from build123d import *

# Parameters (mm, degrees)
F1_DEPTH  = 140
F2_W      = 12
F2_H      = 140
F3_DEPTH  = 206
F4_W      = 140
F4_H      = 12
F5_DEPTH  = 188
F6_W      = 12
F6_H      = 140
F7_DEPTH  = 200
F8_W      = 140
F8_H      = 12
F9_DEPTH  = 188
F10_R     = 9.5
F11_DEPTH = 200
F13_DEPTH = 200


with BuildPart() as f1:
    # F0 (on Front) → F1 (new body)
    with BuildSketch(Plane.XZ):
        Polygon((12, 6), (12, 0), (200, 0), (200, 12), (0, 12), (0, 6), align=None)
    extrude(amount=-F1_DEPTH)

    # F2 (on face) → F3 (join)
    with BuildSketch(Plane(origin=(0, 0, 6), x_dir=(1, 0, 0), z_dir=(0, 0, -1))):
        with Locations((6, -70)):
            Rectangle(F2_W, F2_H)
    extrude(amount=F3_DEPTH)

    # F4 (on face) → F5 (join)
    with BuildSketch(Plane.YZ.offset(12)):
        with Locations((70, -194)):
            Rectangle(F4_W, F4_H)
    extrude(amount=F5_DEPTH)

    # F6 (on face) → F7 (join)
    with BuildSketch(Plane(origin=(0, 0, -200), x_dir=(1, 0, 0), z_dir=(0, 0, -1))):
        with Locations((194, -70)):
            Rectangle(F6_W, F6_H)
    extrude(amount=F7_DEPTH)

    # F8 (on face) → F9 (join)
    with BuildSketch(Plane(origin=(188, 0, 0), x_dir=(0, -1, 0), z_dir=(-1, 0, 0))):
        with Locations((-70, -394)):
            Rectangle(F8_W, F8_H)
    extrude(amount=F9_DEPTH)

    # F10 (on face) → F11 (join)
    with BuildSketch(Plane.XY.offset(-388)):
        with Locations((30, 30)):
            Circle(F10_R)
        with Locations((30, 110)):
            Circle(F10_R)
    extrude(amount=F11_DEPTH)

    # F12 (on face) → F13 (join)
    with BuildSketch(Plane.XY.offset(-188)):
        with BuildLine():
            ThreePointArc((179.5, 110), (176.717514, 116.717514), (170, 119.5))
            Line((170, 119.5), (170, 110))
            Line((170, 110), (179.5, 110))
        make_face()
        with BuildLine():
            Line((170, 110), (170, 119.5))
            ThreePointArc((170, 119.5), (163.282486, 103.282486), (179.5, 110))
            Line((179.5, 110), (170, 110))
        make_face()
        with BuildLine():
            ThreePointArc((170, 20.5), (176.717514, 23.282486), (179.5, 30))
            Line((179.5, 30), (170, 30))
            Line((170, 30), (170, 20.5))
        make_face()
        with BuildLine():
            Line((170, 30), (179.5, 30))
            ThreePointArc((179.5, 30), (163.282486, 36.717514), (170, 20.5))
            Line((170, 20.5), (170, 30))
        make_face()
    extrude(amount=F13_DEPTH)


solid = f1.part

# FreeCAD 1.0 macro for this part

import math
import FreeCAD as App
import Part
import Sketcher

V = App.Vector
Q = App.Units.Quantity

doc = App.newDocument("Part")
body = doc.addObject("PartDesign::Body", "Body")

# Sketch on XZ plane
sketch1 = body.newObject("Sketcher::SketchObject", "Sketch")
sketch1.AttachmentSupport = (doc.getObject("XZ_Plane"), [""])
sketch1.MapMode = "FlatFace"
sketch1.addGeometry([
    Part.LineSegment(V(12, 6, 0), V(12, 0, 0)),  # 0
    Part.LineSegment(V(12, 0, 0), V(200, 0, 0)),  # 1
    Part.LineSegment(V(200, 0, 0), V(200, 12, 0)),  # 2
    Part.LineSegment(V(200, 12, 0), V(0, 12, 0)),  # 3
    Part.LineSegment(V(0, 12, 0), V(0, 6, 0)),  # 4
    Part.LineSegment(V(0, 6, 0), V(12, 6, 0)),  # 5
], False)
sketch1.addConstraint([
    Sketcher.Constraint("Coincident", 0, 2, 1, 1),
    Sketcher.Constraint("Coincident", 1, 2, 2, 1),
    Sketcher.Constraint("Coincident", 2, 2, 3, 1),
    Sketcher.Constraint("Coincident", 3, 2, 4, 1),
    Sketcher.Constraint("Coincident", 4, 2, 5, 1),
    Sketcher.Constraint("Coincident", 5, 2, 0, 1),
    Sketcher.Constraint("Vertical", 0),
    Sketcher.Constraint("Horizontal", 1),
    Sketcher.Constraint("Vertical", 2),
    Sketcher.Constraint("Horizontal", 3),
    Sketcher.Constraint("Vertical", 4),
    Sketcher.Constraint("Horizontal", 5),
    Sketcher.Constraint("PointOnObject", 0, 2, -1),
    Sketcher.Constraint("PointOnObject", 3, 2, -2),
    Sketcher.Constraint("Equal", 5, 2),
    Sketcher.Constraint("Equal", 0, 4),
    Sketcher.Constraint("DistanceX", 1, 1, 1, 2, Q("188 mm")),
    Sketcher.Constraint("DistanceX", 3, 2, 3, 1, Q("200 mm")),
])
pad1 = body.newObject("PartDesign::Pad", "Pad")
pad1.Profile = sketch1
pad1.Length = 140
pad1.Reversed = True

# Sketch on XY plane
sketch2 = body.newObject("Sketcher::SketchObject", "Sketch001")
sketch2.AttachmentSupport = (doc.getObject("XY_Plane"), [""])
sketch2.MapMode = "FlatFace"
sketch2.AttachmentOffset = App.Placement(V(0, 0, 6), App.Rotation())
sketch2.addGeometry([
    Part.LineSegment(V(0, 0, 0), V(0, 140, 0)),
    Part.LineSegment(V(0, 140, 0), V(12, 140, 0)),
    Part.LineSegment(V(12, 140, 0), V(12, 0, 0)),
    Part.LineSegment(V(12, 0, 0), V(0, 0, 0)),
], False)
sketch2.addConstraint([
    Sketcher.Constraint("Coincident", 0, 2, 1, 1),
    Sketcher.Constraint("Coincident", 1, 2, 2, 1),
    Sketcher.Constraint("Coincident", 2, 2, 3, 1),
    Sketcher.Constraint("Coincident", 3, 2, 0, 1),
    Sketcher.Constraint("Vertical", 0),
    Sketcher.Constraint("Horizontal", 1),
    Sketcher.Constraint("Vertical", 2),
    Sketcher.Constraint("Horizontal", 3),
    Sketcher.Constraint("Coincident", 3, 2, -1, 1),
    Sketcher.Constraint("DistanceX", 1, 1, 1, 2, Q("12 mm")),
    Sketcher.Constraint("DistanceY", 0, 1, 0, 2, Q("140 mm")),
])
pad2 = body.newObject("PartDesign::Pad", "Pad001")
pad2.Profile = sketch2
pad2.Length = 206
pad2.Reversed = True

# Sketch on YZ plane
sketch3 = body.newObject("Sketcher::SketchObject", "Sketch002")
sketch3.AttachmentSupport = (doc.getObject("YZ_Plane"), [""])
sketch3.MapMode = "FlatFace"
sketch3.AttachmentOffset = App.Placement(V(0, 0, 12), App.Rotation())
sketch3.addGeometry([
    Part.LineSegment(V(0, -188, 0), V(0, -200, 0)),
    Part.LineSegment(V(0, -200, 0), V(140, -200, 0)),
    Part.LineSegment(V(140, -200, 0), V(140, -188, 0)),
    Part.LineSegment(V(140, -188, 0), V(0, -188, 0)),
], False)
sketch3.addConstraint([
    Sketcher.Constraint("Coincident", 0, 2, 1, 1),
    Sketcher.Constraint("Coincident", 1, 2, 2, 1),
    Sketcher.Constraint("Coincident", 2, 2, 3, 1),
    Sketcher.Constraint("Coincident", 3, 2, 0, 1),
    Sketcher.Constraint("Vertical", 0),
    Sketcher.Constraint("Horizontal", 1),
    Sketcher.Constraint("Vertical", 2),
    Sketcher.Constraint("Horizontal", 3),
    Sketcher.Constraint("PointOnObject", 0, 2, -2),
    Sketcher.Constraint("DistanceX", 1, 1, 1, 2, Q("140 mm")),
    Sketcher.Constraint("DistanceY", 0, 2, 0, 1, Q("12 mm")),
    Sketcher.Constraint("DistanceY", 0, 2, -1, 1, Q("200 mm")),
])
pad3 = body.newObject("PartDesign::Pad", "Pad002")
pad3.Profile = sketch3
pad3.Length = 188

# Sketch on XY plane
sketch4 = body.newObject("Sketcher::SketchObject", "Sketch003")
sketch4.AttachmentSupport = (doc.getObject("XY_Plane"), [""])
sketch4.MapMode = "FlatFace"
sketch4.AttachmentOffset = App.Placement(V(0, 0, -200), App.Rotation())
sketch4.addGeometry([
    Part.LineSegment(V(188, 0, 0), V(188, 140, 0)),
    Part.LineSegment(V(188, 140, 0), V(200, 140, 0)),
    Part.LineSegment(V(200, 140, 0), V(200, 0, 0)),
    Part.LineSegment(V(200, 0, 0), V(188, 0, 0)),
], False)
sketch4.addConstraint([
    Sketcher.Constraint("Coincident", 0, 2, 1, 1),
    Sketcher.Constraint("Coincident", 1, 2, 2, 1),
    Sketcher.Constraint("Coincident", 2, 2, 3, 1),
    Sketcher.Constraint("Coincident", 3, 2, 0, 1),
    Sketcher.Constraint("Vertical", 0),
    Sketcher.Constraint("Horizontal", 1),
    Sketcher.Constraint("Vertical", 2),
    Sketcher.Constraint("Horizontal", 3),
    Sketcher.Constraint("PointOnObject", 2, 2, -1),
    Sketcher.Constraint("DistanceX", 1, 1, 1, 2, Q("12 mm")),
    Sketcher.Constraint("DistanceY", 0, 1, 0, 2, Q("140 mm")),
    Sketcher.Constraint("DistanceX", -1, 1, 0, 2, Q("188 mm")),
])
pad4 = body.newObject("PartDesign::Pad", "Pad003")
pad4.Profile = sketch4
pad4.Length = 200
pad4.Reversed = True

# Sketch on YZ plane
sketch5 = body.newObject("Sketcher::SketchObject", "Sketch004")
sketch5.AttachmentSupport = (doc.getObject("YZ_Plane"), [""])
sketch5.MapMode = "FlatFace"
sketch5.AttachmentOffset = App.Placement(V(0, 0, 188), App.Rotation())
sketch5.addGeometry([
    Part.LineSegment(V(140, -388, 0), V(140, -400, 0)),
    Part.LineSegment(V(140, -400, 0), V(0, -400, 0)),
    Part.LineSegment(V(0, -400, 0), V(0, -388, 0)),
    Part.LineSegment(V(0, -388, 0), V(140, -388, 0)),
], False)
sketch5.addConstraint([
    Sketcher.Constraint("Coincident", 0, 2, 1, 1),
    Sketcher.Constraint("Coincident", 1, 2, 2, 1),
    Sketcher.Constraint("Coincident", 2, 2, 3, 1),
    Sketcher.Constraint("Coincident", 3, 2, 0, 1),
    Sketcher.Constraint("Vertical", 0),
    Sketcher.Constraint("Horizontal", 1),
    Sketcher.Constraint("Vertical", 2),
    Sketcher.Constraint("Horizontal", 3),
    Sketcher.Constraint("PointOnObject", 1, 2, -2),
    Sketcher.Constraint("DistanceX", 1, 2, 1, 1, Q("140 mm")),
    Sketcher.Constraint("DistanceY", 0, 2, 0, 1, Q("12 mm")),
    Sketcher.Constraint("DistanceY", 0, 2, -1, 1, Q("400 mm")),
])
pad5 = body.newObject("PartDesign::Pad", "Pad004")
pad5.Profile = sketch5
pad5.Length = 188
pad5.Reversed = True

# Sketch on XY plane
sketch6 = body.newObject("Sketcher::SketchObject", "Sketch005")
sketch6.AttachmentSupport = (doc.getObject("XY_Plane"), [""])
sketch6.MapMode = "FlatFace"
sketch6.AttachmentOffset = App.Placement(V(0, 0, -388), App.Rotation())
sketch6.addGeometry([
    Part.Circle(V(30, 30, 0), V(0, 0, 1), 9.5),
    Part.Circle(V(30, 110, 0), V(0, 0, 1), 9.5),
], False)
sketch6.addConstraint([
    Sketcher.Constraint("Equal", 0, 1),
    Sketcher.Constraint("Vertical", 0, 3, 1, 3),
    Sketcher.Constraint("Diameter", 0, Q("19 mm")),
    Sketcher.Constraint("DistanceX", -1, 1, 0, 3, Q("30 mm")),
    Sketcher.Constraint("DistanceY", -1, 1, 0, 3, Q("30 mm")),
    Sketcher.Constraint("DistanceY", -1, 1, 1, 3, Q("110 mm")),
])
pad6 = body.newObject("PartDesign::Pad", "Pad005")
pad6.Profile = sketch6
pad6.Length = 200

# Sketch on XY plane
sketch7 = body.newObject("Sketcher::SketchObject", "Sketch006")
sketch7.AttachmentSupport = (doc.getObject("XY_Plane"), [""])
sketch7.MapMode = "FlatFace"
sketch7.AttachmentOffset = App.Placement(V(0, 0, -188), App.Rotation())
sketch7.addGeometry([
    Part.ArcOfCircle(Part.Circle(V(169.999999, 109.999999, 0), V(0, 0, 1), 9.500001), math.radians(0.000009), math.radians(89.999991)),
    Part.ArcOfCircle(Part.Circle(V(170, 110, 0), V(0, 0, 1), 9.5), math.radians(90.000001), math.radians(359.999999)),
    Part.ArcOfCircle(Part.Circle(V(169.999999, 30.000001, 0), V(0, 0, 1), 9.500001), math.radians(-89.999991), math.radians(-0.000009)),
    Part.ArcOfCircle(Part.Circle(V(170, 30, 0), V(0, 0, 1), 9.5), math.radians(0.000001), math.radians(269.999999)),
], False)
sketch7.addConstraint([
    Sketcher.Constraint("Tangent", 0, 1, 1, 2),
    Sketcher.Constraint("Coincident", 1, 1, 0, 2),
    Sketcher.Constraint("Tangent", 2, 1, 3, 2),
    Sketcher.Constraint("Coincident", 3, 1, 2, 2),
    Sketcher.Constraint("Equal", 1, 2),
    Sketcher.Constraint("Horizontal", 1, 3, 0, 1),
    Sketcher.Constraint("Horizontal", 2, 3, 3, 1),
    Sketcher.Constraint("Vertical", 1, 3, 2, 3),
    Sketcher.Constraint("Vertical", 3, 3, 1, 1),
    Sketcher.Constraint("Vertical", 1, 1, 2, 1),
    Sketcher.Constraint("Radius", 0, Q("9.500001 mm")),
    Sketcher.Constraint("DistanceX", -1, 1, 0, 3, Q("169.999999 mm")),
    Sketcher.Constraint("DistanceY", -1, 1, 0, 3, Q("109.999999 mm")),
    Sketcher.Constraint("DistanceY", -1, 1, 2, 3, Q("30.000001 mm")),
])
pad7 = body.newObject("PartDesign::Pad", "Pad006")
pad7.Profile = sketch7
pad7.Length = 200

doc.recompute()
